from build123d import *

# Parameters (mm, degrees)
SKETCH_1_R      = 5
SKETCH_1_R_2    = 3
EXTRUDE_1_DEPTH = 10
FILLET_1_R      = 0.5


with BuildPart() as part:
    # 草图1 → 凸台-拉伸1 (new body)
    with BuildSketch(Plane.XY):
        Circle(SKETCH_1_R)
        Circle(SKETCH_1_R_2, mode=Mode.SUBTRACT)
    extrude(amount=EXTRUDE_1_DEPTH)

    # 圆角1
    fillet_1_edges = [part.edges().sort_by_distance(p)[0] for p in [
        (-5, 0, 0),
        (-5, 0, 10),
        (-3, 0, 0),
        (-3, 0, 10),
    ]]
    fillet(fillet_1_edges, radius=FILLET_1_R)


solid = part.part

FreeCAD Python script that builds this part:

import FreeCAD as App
import Part
import Sketcher


def edges_at(feature, points):
    """Names of the edges that pass closest to the given points."""
    edges = feature.Shape.Edges
    near = lambda p: min(range(len(edges)), key=lambda i: edges[i].distToShape(Part.Vertex(*p))[0])
    return sorted({f"Edge{near(p) + 1}" for p in points})

doc = App.newDocument("Part")
body = doc.addObject("PartDesign::Body", "Body")

# Sketch on XY plane
sketch1 = body.newObject("Sketcher::SketchObject", "Sketch")
sketch1.AttachmentSupport = (doc.getObject("XY_Plane"), [""])
sketch1.MapMode = "FlatFace"
sketch1.addGeometry([
    Part.Circle(App.Vector(0, 0, 0), App.Vector(0, 0, 1), 5),
    Part.Circle(App.Vector(0, 0, 0), App.Vector(0, 0, 1), 3),
], False)
sketch1.addConstraint([
    Sketcher.Constraint("Coincident", 0, 3, -1, 1),
    Sketcher.Constraint("Coincident", 1, 3, -1, 1),
    Sketcher.Constraint("Diameter", 0, 10.0),
    Sketcher.Constraint("Diameter", 1, 6.0),
])
pad1 = body.newObject("PartDesign::Pad", "Pad")
pad1.Profile = sketch1
pad1.Length = 10
doc.recompute()

fillet = body.newObject("PartDesign::Fillet", "Fillet")
fillet.Base = (pad1, edges_at(pad1, [
    (-5, 0, 0),
    (-5, 0, 10),
    (-3, 0, 0),
    (-3, 0, 10),
]))
fillet.Radius = 0.5

doc.recompute()
